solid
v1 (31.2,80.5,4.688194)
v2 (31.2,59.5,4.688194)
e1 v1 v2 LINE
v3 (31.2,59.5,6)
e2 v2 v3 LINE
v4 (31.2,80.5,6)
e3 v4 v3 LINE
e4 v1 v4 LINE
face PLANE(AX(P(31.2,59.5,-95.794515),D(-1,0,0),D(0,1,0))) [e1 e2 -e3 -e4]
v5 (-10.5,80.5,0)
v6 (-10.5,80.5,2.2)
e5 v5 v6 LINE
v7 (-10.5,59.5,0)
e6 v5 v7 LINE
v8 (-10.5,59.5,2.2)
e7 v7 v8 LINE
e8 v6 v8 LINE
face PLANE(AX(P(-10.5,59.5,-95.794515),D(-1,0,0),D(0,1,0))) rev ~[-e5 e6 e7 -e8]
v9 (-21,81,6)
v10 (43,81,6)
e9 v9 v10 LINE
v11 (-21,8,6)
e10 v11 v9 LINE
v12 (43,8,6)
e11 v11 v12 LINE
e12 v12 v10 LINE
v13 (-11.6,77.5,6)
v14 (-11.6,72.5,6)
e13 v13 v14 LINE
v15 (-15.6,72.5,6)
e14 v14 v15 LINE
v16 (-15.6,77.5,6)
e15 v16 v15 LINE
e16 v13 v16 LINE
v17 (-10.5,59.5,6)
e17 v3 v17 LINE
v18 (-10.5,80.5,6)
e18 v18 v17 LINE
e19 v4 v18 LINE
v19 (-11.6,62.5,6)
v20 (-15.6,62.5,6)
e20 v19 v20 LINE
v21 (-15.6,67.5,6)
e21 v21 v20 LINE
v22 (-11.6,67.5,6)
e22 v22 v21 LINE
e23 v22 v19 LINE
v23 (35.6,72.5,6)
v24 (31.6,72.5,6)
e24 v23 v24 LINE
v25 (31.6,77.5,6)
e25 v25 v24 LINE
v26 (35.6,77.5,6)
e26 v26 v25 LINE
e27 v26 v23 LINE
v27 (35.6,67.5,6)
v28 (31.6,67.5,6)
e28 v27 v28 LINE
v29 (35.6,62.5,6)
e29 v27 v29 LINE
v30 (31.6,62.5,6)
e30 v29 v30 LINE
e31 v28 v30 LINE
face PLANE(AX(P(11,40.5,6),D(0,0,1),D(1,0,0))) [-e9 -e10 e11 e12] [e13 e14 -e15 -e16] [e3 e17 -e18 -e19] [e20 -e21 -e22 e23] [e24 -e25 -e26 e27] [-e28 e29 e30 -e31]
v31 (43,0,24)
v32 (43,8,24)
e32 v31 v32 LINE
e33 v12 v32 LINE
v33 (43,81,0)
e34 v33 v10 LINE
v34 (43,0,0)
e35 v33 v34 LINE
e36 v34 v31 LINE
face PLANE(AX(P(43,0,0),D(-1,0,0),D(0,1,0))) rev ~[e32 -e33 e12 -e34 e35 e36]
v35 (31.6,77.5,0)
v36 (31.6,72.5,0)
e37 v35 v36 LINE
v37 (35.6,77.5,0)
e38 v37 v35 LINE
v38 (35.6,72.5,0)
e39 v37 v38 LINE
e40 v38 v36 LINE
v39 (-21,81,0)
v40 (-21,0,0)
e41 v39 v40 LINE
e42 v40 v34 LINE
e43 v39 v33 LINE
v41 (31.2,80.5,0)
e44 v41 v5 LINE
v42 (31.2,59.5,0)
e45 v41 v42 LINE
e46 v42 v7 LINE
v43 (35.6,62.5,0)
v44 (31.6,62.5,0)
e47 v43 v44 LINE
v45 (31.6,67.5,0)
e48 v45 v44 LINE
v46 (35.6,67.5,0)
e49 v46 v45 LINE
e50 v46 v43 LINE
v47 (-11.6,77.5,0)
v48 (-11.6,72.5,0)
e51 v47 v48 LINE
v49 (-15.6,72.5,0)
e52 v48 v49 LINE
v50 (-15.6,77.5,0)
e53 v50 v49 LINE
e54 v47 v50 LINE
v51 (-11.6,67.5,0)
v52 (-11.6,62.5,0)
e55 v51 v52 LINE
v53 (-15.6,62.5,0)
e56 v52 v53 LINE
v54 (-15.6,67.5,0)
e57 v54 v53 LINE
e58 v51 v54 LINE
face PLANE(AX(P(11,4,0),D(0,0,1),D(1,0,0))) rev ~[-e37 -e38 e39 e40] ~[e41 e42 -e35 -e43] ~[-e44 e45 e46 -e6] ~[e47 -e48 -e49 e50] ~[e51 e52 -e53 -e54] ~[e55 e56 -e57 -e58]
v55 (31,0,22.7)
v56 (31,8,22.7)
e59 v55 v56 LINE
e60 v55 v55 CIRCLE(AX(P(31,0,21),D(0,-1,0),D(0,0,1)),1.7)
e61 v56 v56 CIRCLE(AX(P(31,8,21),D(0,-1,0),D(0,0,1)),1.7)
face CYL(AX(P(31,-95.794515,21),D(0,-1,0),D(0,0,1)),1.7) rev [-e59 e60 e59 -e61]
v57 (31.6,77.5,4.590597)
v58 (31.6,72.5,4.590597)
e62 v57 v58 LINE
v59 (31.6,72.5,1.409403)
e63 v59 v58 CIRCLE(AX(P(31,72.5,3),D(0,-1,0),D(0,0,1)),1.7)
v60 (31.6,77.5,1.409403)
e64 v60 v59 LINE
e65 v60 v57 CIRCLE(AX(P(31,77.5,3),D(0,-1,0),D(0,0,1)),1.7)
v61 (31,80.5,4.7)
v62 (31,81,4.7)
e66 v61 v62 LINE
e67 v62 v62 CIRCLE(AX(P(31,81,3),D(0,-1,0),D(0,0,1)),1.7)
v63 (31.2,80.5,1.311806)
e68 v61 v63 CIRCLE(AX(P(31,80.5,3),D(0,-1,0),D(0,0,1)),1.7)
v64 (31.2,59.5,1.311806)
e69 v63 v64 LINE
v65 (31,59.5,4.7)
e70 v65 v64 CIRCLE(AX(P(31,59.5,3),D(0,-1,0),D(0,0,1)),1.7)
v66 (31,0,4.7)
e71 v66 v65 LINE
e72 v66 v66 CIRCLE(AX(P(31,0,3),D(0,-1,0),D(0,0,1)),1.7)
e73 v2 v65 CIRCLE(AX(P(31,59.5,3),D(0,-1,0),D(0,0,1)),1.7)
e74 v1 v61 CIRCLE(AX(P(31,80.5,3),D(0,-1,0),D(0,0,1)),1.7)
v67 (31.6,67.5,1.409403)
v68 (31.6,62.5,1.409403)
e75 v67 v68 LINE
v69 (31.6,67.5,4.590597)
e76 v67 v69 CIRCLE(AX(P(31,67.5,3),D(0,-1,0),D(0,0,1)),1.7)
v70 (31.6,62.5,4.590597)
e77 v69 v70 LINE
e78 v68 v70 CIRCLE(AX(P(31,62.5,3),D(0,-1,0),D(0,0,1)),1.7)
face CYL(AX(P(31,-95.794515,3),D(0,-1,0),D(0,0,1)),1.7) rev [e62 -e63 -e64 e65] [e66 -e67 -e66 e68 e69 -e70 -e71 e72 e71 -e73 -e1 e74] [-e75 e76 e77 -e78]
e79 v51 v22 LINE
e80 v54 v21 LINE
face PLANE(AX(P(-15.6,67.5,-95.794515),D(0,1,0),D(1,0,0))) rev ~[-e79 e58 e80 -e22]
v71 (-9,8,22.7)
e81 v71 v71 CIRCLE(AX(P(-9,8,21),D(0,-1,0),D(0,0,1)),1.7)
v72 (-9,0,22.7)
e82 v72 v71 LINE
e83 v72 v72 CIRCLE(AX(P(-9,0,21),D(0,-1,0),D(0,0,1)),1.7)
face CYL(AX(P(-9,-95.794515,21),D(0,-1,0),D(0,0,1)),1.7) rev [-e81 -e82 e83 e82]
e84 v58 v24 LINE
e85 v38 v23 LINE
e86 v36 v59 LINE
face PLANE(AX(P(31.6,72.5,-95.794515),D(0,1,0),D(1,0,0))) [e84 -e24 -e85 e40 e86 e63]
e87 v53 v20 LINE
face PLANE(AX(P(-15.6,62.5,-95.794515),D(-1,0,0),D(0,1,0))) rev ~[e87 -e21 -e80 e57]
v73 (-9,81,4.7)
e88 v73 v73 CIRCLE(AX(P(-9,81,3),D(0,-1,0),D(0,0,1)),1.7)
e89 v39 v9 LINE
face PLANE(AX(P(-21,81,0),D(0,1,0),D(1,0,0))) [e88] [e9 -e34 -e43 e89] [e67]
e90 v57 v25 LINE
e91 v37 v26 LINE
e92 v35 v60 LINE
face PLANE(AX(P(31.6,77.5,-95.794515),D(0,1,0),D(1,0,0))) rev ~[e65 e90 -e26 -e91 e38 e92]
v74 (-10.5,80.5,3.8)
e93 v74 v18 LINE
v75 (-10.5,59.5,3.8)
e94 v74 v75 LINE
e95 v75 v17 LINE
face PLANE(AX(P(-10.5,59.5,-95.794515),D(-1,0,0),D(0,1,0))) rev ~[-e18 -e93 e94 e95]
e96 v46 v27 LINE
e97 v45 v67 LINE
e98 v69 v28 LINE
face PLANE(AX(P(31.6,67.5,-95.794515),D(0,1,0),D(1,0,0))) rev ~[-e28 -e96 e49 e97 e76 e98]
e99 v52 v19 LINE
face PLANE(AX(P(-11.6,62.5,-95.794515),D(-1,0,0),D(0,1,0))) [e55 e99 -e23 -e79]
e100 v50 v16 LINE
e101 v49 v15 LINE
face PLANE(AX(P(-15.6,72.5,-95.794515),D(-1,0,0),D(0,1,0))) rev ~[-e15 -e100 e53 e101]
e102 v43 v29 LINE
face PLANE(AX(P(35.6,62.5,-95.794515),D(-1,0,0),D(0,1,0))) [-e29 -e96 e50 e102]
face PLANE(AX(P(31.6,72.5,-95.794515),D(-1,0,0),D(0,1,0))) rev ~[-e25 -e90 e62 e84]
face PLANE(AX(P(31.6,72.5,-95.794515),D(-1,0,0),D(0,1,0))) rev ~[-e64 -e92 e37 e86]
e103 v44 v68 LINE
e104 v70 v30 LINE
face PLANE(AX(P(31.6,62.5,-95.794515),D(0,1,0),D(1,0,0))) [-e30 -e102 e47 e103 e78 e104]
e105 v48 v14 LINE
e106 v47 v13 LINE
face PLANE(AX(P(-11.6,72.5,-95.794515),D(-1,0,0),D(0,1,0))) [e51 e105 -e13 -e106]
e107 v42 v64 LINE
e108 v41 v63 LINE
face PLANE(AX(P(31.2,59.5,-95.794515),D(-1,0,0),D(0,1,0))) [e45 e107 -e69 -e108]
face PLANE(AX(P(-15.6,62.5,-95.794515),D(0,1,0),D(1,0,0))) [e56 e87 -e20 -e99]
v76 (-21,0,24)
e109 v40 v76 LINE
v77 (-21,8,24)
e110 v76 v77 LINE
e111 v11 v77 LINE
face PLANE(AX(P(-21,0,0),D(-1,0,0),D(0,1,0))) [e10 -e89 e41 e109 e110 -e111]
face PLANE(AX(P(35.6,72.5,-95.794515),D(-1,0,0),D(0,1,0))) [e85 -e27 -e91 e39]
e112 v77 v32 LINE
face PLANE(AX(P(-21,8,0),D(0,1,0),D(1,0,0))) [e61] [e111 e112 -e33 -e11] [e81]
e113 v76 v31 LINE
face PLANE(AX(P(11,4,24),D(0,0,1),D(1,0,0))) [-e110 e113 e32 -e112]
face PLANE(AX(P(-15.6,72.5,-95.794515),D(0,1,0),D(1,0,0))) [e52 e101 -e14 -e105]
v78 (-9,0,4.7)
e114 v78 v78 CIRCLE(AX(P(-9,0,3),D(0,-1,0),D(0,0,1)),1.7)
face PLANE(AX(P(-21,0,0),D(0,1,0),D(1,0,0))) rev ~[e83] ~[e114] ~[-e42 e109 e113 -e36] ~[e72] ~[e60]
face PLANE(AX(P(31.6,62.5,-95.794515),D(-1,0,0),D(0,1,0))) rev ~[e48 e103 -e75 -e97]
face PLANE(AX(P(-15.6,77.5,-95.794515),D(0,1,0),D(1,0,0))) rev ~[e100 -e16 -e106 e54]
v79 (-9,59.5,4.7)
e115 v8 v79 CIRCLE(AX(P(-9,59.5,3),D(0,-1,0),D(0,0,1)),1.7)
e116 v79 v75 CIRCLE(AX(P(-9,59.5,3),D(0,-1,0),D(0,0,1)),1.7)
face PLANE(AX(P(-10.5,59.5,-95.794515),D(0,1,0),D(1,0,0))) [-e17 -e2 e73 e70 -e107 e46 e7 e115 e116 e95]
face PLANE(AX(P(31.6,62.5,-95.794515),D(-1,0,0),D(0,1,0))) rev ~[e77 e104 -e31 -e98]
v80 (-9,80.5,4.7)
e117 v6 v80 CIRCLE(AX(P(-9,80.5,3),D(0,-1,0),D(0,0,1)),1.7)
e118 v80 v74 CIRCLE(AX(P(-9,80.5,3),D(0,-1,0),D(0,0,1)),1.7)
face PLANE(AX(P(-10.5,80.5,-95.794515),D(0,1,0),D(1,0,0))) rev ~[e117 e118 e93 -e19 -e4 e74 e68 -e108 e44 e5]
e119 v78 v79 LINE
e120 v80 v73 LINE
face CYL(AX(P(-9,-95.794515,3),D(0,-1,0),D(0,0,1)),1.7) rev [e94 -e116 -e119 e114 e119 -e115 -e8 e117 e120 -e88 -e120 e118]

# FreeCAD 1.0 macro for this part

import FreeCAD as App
import Part
import Sketcher

V = App.Vector
Q = App.Units.Quantity

doc = App.newDocument("Part")
body = doc.addObject("PartDesign::Body", "Body")

# Sketch on XY plane
sketch1 = body.newObject("Sketcher::SketchObject", "Sketch")
sketch1.AttachmentSupport = (doc.getObject("XY_Plane"), [""])
sketch1.MapMode = "FlatFace"
sketch1.addGeometry(Part.LineSegment(V(-21, 8, 0), V(-21, 0, 0)), False)
sketch1.addGeometry(Part.LineSegment(V(-21, 0, 0), V(43, 0, 0)), False)
sketch1.addGeometry(Part.LineSegment(V(43, 0, 0), V(43, 8, 0)), False)
sketch1.addGeometry(Part.LineSegment(V(43, 8, 0), V(-21, 8, 0)), False)
sketch1.addConstraint(Sketcher.Constraint("Coincident", 0, 2, 1, 1))
sketch1.addConstraint(Sketcher.Constraint("Coincident", 1, 2, 2, 1))
sketch1.addConstraint(Sketcher.Constraint("Coincident", 2, 2, 3, 1))
sketch1.addConstraint(Sketcher.Constraint("Coincident", 3, 2, 0, 1))
sketch1.addConstraint(Sketcher.Constraint("Vertical", 0))
sketch1.addConstraint(Sketcher.Constraint("Horizontal", 1))
sketch1.addConstraint(Sketcher.Constraint("Vertical", 2))
sketch1.addConstraint(Sketcher.Constraint("Horizontal", 3))
sketch1.addConstraint(Sketcher.Constraint("PointOnObject", 0, 2, -1))
sketch1.addConstraint(Sketcher.Constraint("DistanceX", 1, 1, 1, 2, Q("64 mm")))
sketch1.addConstraint(Sketcher.Constraint("DistanceY", 0, 2, 0, 1, Q("8 mm")))
sketch1.addConstraint(Sketcher.Constraint("DistanceX", 0, 2, -1, 1, Q("21 mm")))
pad1 = body.newObject("PartDesign::Pad", "Pad")
pad1.Profile = sketch1
pad1.Length = 24

# Sketch on XY plane
sketch2 = body.newObject("Sketcher::SketchObject", "Sketch001")
sketch2.AttachmentSupport = (doc.getObject("XY_Plane"), [""])
sketch2.MapMode = "FlatFace"
sketch2.addGeometry(Part.LineSegment(V(-21, 81, 0), V(-21, 0, 0)), False)
sketch2.addGeometry(Part.LineSegment(V(-21, 0, 0), V(43, 0, 0)), False)
sketch2.addGeometry(Part.LineSegment(V(43, 0, 0), V(43, 81, 0)), False)
sketch2.addGeometry(Part.LineSegment(V(43, 81, 0), V(-21, 81, 0)), False)
sketch2.addConstraint(Sketcher.Constraint("Coincident", 0, 2, 1, 1))
sketch2.addConstraint(Sketcher.Constraint("Coincident", 1, 2, 2, 1))
sketch2.addConstraint(Sketcher.Constraint("Coincident", 2, 2, 3, 1))
sketch2.addConstraint(Sketcher.Constraint("Coincident", 3, 2, 0, 1))
sketch2.addConstraint(Sketcher.Constraint("Vertical", 0))
sketch2.addConstraint(Sketcher.Constraint("Horizontal", 1))
sketch2.addConstraint(Sketcher.Constraint("Vertical", 2))
sketch2.addConstraint(Sketcher.Constraint("Horizontal", 3))
sketch2.addConstraint(Sketcher.Constraint("PointOnObject", 0, 2, -1))
sketch2.addConstraint(Sketcher.Constraint("DistanceX", 1, 1, 1, 2, Q("64 mm")))
sketch2.addConstraint(Sketcher.Constraint("DistanceY", 0, 2, 0, 1, Q("81 mm")))
sketch2.addConstraint(Sketcher.Constraint("DistanceX", 0, 2, -1, 1, Q("21 mm")))
pad2 = body.newObject("PartDesign::Pad", "Pad001")
pad2.Profile = sketch2
pad2.Length = 6

# Sketch on XY plane
sketch3 = body.newObject("Sketcher::SketchObject", "Sketch002")
sketch3.AttachmentSupport = (doc.getObject("XY_Plane"), [""])
sketch3.MapMode = "FlatFace"
sketch3.addGeometry(Part.LineSegment(V(-10, 80, 0), V(-10, 60, 0)), False)
sketch3.addGeometry(Part.LineSegment(V(-10, 60, 0), V(31, 60, 0)), False)
sketch3.addGeometry(Part.LineSegment(V(31, 60, 0), V(31, 80, 0)), False)
sketch3.addGeometry(Part.LineSegment(V(31, 80, 0), V(-10, 80, 0)), False)
sketch3.addConstraint(Sketcher.Constraint("Coincident", 0, 2, 1, 1))
sketch3.addConstraint(Sketcher.Constraint("Coincident", 1, 2, 2, 1))
sketch3.addConstraint(Sketcher.Constraint("Coincident", 2, 2, 3, 1))
sketch3.addConstraint(Sketcher.Constraint("Coincident", 3, 2, 0, 1))
sketch3.addConstraint(Sketcher.Constraint("Vertical", 0))
sketch3.addConstraint(Sketcher.Constraint("Horizontal", 1))
sketch3.addConstraint(Sketcher.Constraint("Vertical", 2))
sketch3.addConstraint(Sketcher.Constraint("Horizontal", 3))
sketch3.addConstraint(Sketcher.Constraint("DistanceY", 0, 2, 0, 1, Q("21 mm")))
sketch3.addConstraint(Sketcher.Constraint("DistanceX", 1, 1, 1, 2, Q("41.7 mm")))
sketch3.addConstraint(Sketcher.Constraint("DistanceX", 0, 2, -1, 1, Q("10.5 mm")))
sketch3.addConstraint(Sketcher.Constraint("DistanceY", -1, 1, 0, 2, Q("59.5 mm")))
pocket1 = body.newObject("PartDesign::Pocket", "Pocket")
pocket1.Profile = sketch3
pocket1.Type = "ThroughAll"
pocket1.Midplane = True

# Sketch on XY plane
sketch4 = body.newObject("Sketcher::SketchObject", "Sketch003")
sketch4.AttachmentSupport = (doc.getObject("XY_Plane"), [""])
sketch4.MapMode = "FlatFace"
sketch4.addGeometry(Part.LineSegment(V(-15.6, 67.5, 0), V(-15.6, 62.5, 0)), False)
sketch4.addGeometry(Part.LineSegment(V(-15.6, 62.5, 0), V(-11.6, 62.5, 0)), False)
sketch4.addGeometry(Part.LineSegment(V(-11.6, 62.5, 0), V(-11.6, 67.5, 0)), False)
sketch4.addGeometry(Part.LineSegment(V(-11.6, 67.5, 0), V(-15.6, 67.5, 0)), False)
sketch4.addGeometry(Part.LineSegment(V(-15.6, 77.5, 0), V(-15.6, 72.5, 0)), False)
sketch4.addGeometry(Part.LineSegment(V(-15.6, 72.5, 0), V(-11.6, 72.5, 0)), False)
sketch4.addGeometry(Part.LineSegment(V(-11.6, 72.5, 0), V(-11.6, 77.5, 0)), False)
sketch4.addGeometry(Part.LineSegment(V(-11.6, 77.5, 0), V(-15.6, 77.5, 0)), False)
sketch4.addGeometry(Part.LineSegment(V(31.6, 67.5, 0), V(31.6, 62.5, 0)), False)
sketch4.addGeometry(Part.LineSegment(V(31.6, 62.5, 0), V(35.6, 62.5, 0)), False)
sketch4.addGeometry(Part.LineSegment(V(35.6, 62.5, 0), V(35.6, 67.5, 0)), False)
sketch4.addGeometry(Part.LineSegment(V(35.6, 67.5, 0), V(31.6, 67.5, 0)), False)
sketch4.addGeometry(Part.LineSegment(V(31.6, 77.5, 0), V(31.6, 72.5, 0)), False)
sketch4.addGeometry(Part.LineSegment(V(31.6, 72.5, 0), V(35.6, 72.5, 0)), False)
sketch4.addGeometry(Part.LineSegment(V(35.6, 72.5, 0), V(35.6, 77.5, 0)), False)
sketch4.addGeometry(Part.LineSegment(V(35.6, 77.5, 0), V(31.6, 77.5, 0)), False)
sketch4.addConstraint(Sketcher.Constraint("Coincident", 0, 2, 1, 1))
sketch4.addConstraint(Sketcher.Constraint("Coincident", 1, 2, 2, 1))
sketch4.addConstraint(Sketcher.Constraint("Coincident", 2, 2, 3, 1))
sketch4.addConstraint(Sketcher.Constraint("Coincident", 3, 2, 0, 1))
sketch4.addConstraint(Sketcher.Constraint("Coincident", 4, 2, 5, 1))
sketch4.addConstraint(Sketcher.Constraint("Coincident", 5, 2, 6, 1))
sketch4.addConstraint(Sketcher.Constraint("Coincident", 6, 2, 7, 1))
sketch4.addConstraint(Sketcher.Constraint("Coincident", 7, 2, 4, 1))
sketch4.addConstraint(Sketcher.Constraint("Coincident", 8, 2, 9, 1))
sketch4.addConstraint(Sketcher.Constraint("Coincident", 9, 2, 10, 1))
sketch4.addConstraint(Sketcher.Constraint("Coincident", 10, 2, 11, 1))
sketch4.addConstraint(Sketcher.Constraint("Coincident", 11, 2, 8, 1))
sketch4.addConstraint(Sketcher.Constraint("Coincident", 12, 2, 13, 1))
sketch4.addConstraint(Sketcher.Constraint("Coincident", 13, 2, 14, 1))
sketch4.addConstraint(Sketcher.Constraint("Coincident", 14, 2, 15, 1))
sketch4.addConstraint(Sketcher.Constraint("Coincident", 15, 2, 12, 1))
sketch4.addConstraint(Sketcher.Constraint("Vertical", 0))
sketch4.addConstraint(Sketcher.Constraint("Horizontal", 1))
sketch4.addConstraint(Sketcher.Constraint("Vertical", 2))
sketch4.addConstraint(Sketcher.Constraint("Horizontal", 3))
sketch4.addConstraint(Sketcher.Constraint("Vertical", 4))
sketch4.addConstraint(Sketcher.Constraint("Horizontal", 5))
sketch4.addConstraint(Sketcher.Constraint("Vertical", 6))
sketch4.addConstraint(Sketcher.Constraint("Horizontal", 7))
sketch4.addConstraint(Sketcher.Constraint("Vertical", 8))
sketch4.addConstraint(Sketcher.Constraint("Horizontal", 9))
sketch4.addConstraint(Sketcher.Constraint("Vertical", 10))
sketch4.addConstraint(Sketcher.Constraint("Horizontal", 11))
sketch4.addConstraint(Sketcher.Constraint("Vertical", 12))
sketch4.addConstraint(Sketcher.Constraint("Horizontal", 13))
sketch4.addConstraint(Sketcher.Constraint("Vertical", 14))
sketch4.addConstraint(Sketcher.Constraint("Horizontal", 15))
sketch4.addConstraint(Sketcher.Constraint("Horizontal", 1, 2, 8, 2))
sketch4.addConstraint(Sketcher.Constraint("Horizontal", 3, 2, 10, 2))
sketch4.addConstraint(Sketcher.Constraint("Horizontal", 5, 2, 12, 2))
sketch4.addConstraint(Sketcher.Constraint("Horizontal", 7, 2, 14, 2))
sketch4.addConstraint(Sketcher.Constraint("Vertical", 3, 2, 4, 2))
sketch4.addConstraint(Sketcher.Constraint("Vertical", 2, 2, 5, 2))
sketch4.addConstraint(Sketcher.Constraint("Vertical", 11, 2, 12, 2))
sketch4.addConstraint(Sketcher.Constraint("Vertical", 10, 2, 13, 2))
sketch4.addConstraint(Sketcher.Constraint("Equal", 7, 9))
sketch4.addConstraint(Sketcher.Constraint("Equal", 2, 4))
sketch4.addConstraint(Sketcher.Constraint("DistanceX", 1, 1, 1, 2, Q("4 mm")))
sketch4.addConstraint(Sketcher.Constraint("DistanceY", 0, 2, 0, 1, Q("5 mm")))
sketch4.addConstraint(Sketcher.Constraint("DistanceY", 3, 2, 4, 2, Q("5 mm")))
sketch4.addConstraint(Sketcher.Constraint("DistanceX", 0, 2, -1, 1, Q("15.6 mm")))
sketch4.addConstraint(Sketcher.Constraint("DistanceY", -1, 1, 0, 2, Q("62.5 mm")))
sketch4.addConstraint(Sketcher.Constraint("DistanceX", -1, 1, 8, 2, Q("31.6 mm")))
pocket2 = body.newObject("PartDesign::Pocket", "Pocket001")
pocket2.Profile = sketch4
pocket2.Type = "ThroughAll"
pocket2.Midplane = True

# Sketch on XZ plane
sketch5 = body.newObject("Sketcher::SketchObject", "Sketch004")
sketch5.AttachmentSupport = (doc.getObject("XZ_Plane"), [""])
sketch5.MapMode = "FlatFace"
sketch5.addGeometry(Part.Circle(V(-9, 3, 0), V(0, 0, 1), 1.7), False)
sketch5.addGeometry(Part.Circle(V(-9, 21, 0), V(0, 0, 1), 1.7), False)
sketch5.addGeometry(Part.Circle(V(31, 3, 0), V(0, 0, 1), 1.7), False)
sketch5.addGeometry(Part.Circle(V(31, 21, 0), V(0, 0, 1), 1.7), False)
sketch5.addConstraint(Sketcher.Constraint("Equal", 0, 1))
sketch5.addConstraint(Sketcher.Constraint("Equal", 1, 2))
sketch5.addConstraint(Sketcher.Constraint("Equal", 2, 3))
sketch5.addConstraint(Sketcher.Constraint("Horizontal", 0, 3, 2, 3))
sketch5.addConstraint(Sketcher.Constraint("Horizontal", 1, 3, 3, 3))
sketch5.addConstraint(Sketcher.Constraint("Vertical", 0, 3, 1, 3))
sketch5.addConstraint(Sketcher.Constraint("Vertical", 2, 3, 3, 3))
sketch5.addConstraint(Sketcher.Constraint("Diameter", 0, Q("3.4 mm")))
sketch5.addConstraint(Sketcher.Constraint("DistanceX", 0, 3, -1, 1, Q("9 mm")))
sketch5.addConstraint(Sketcher.Constraint("DistanceY", -1, 1, 0, 3, Q("3 mm")))
sketch5.addConstraint(Sketcher.Constraint("DistanceY", -1, 1, 1, 3, Q("21 mm")))
sketch5.addConstraint(Sketcher.Constraint("DistanceX", -1, 1, 2, 3, Q("31 mm")))
pocket3 = body.newObject("PartDesign::Pocket", "Pocket002")
pocket3.Profile = sketch5
pocket3.Type = "ThroughAll"
pocket3.Midplane = True

doc.recompute()
